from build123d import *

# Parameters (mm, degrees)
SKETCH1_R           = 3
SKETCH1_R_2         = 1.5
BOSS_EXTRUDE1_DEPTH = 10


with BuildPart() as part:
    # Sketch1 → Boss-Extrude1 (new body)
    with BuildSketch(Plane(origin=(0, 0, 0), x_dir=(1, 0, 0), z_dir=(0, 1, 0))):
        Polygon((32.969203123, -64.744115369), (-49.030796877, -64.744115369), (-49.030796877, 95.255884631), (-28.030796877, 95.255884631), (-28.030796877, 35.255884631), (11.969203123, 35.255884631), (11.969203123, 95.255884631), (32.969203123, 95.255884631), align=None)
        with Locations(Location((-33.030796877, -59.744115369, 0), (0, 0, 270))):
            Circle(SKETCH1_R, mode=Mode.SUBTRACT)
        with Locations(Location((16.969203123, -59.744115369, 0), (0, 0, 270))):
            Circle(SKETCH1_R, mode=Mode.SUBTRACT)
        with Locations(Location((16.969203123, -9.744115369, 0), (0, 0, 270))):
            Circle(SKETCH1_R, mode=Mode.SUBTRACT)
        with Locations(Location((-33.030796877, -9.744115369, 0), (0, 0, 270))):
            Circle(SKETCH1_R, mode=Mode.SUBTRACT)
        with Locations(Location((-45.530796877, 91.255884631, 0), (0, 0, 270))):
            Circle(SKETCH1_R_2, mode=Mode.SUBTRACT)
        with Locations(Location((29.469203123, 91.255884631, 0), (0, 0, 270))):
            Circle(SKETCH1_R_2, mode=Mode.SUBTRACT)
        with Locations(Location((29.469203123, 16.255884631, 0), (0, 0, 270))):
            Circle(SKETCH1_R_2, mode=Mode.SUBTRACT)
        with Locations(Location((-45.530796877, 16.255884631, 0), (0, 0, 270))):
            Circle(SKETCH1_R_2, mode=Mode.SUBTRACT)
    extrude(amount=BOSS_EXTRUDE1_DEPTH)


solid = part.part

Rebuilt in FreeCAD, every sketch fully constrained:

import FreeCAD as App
import Part
import Sketcher
from FreeCAD import Vector


def add_polygon(sketch, points):
    """Adds a closed chain of lines whose ends are joined by coincident constraints."""
    first, n = sketch.GeometryCount, len(points)
    for a, b in zip(points, points[1:] + points[:1]):
        sketch.addGeometry(Part.LineSegment(App.Vector(*a, 0), App.Vector(*b, 0)), False)
    for i in range(n):
        sketch.addConstraint(Sketcher.Constraint("Coincident", first + i, 2, first + (i + 1) % n, 1))

doc = App.newDocument("Part")
body = doc.addObject("PartDesign::Body", "Body")

# Sketch on XZ plane
sketch1 = doc.addObject("Sketcher::SketchObject", "Sketch")
body.addObject(sketch1)
sketch1.AttachmentSupport = (doc.XZ_Plane, [""])
sketch1.MapMode = "FlatFace"
add_polygon(sketch1, [(-49, 64.7), (33, 64.7), (33, -95.3), (12, -95.3), (12, -35.3), (-28, -35.3), (-28, -95.3), (-49, -95.3)])  # lines 0-7
sketch1.addGeometry(Part.Circle(Vector(17, 59.7, 0), Vector(0, 0, 1), 3), False)  # 8
sketch1.addGeometry(Part.Circle(Vector(17, 9.7, 0), Vector(0, 0, 1), 3), False)  # 9
sketch1.addGeometry(Part.Circle(Vector(-33, 59.7, 0), Vector(0, 0, 1), 3), False)  # 10
sketch1.addGeometry(Part.Circle(Vector(-33, 9.7, 0), Vector(0, 0, 1), 3), False)  # 11
sketch1.addGeometry(Part.Circle(Vector(29.5, -16.3, 0), Vector(0, 0, 1), 1.5), False)  # 12
sketch1.addGeometry(Part.Circle(Vector(29.5, -91.3, 0), Vector(0, 0, 1), 1.5), False)  # 13
sketch1.addGeometry(Part.Circle(Vector(-45.5, -16.3, 0), Vector(0, 0, 1), 1.5), False)  # 14
sketch1.addGeometry(Part.Circle(Vector(-45.5, -91.3, 0), Vector(0, 0, 1), 1.5), False)  # 15
sketch1.addConstraint([
    Sketcher.Constraint("Horizontal", 0),
    Sketcher.Constraint("Vertical", 1),
    Sketcher.Constraint("Horizontal", 2),
    Sketcher.Constraint("Vertical", 3),
    Sketcher.Constraint("Horizontal", 4),
    Sketcher.Constraint("Vertical", 5),
    Sketcher.Constraint("Horizontal", 6),
    Sketcher.Constraint("Vertical", 7),
    Sketcher.Constraint("Equal", 8, 9),
    Sketcher.Constraint("Equal", 9, 10),
    Sketcher.Constraint("Equal", 10, 11),
    Sketcher.Constraint("Equal", 12, 13),
    Sketcher.Constraint("Equal", 13, 14),
    Sketcher.Constraint("Equal", 14, 15),
    Sketcher.Constraint("Horizontal", 8, 3, 10, 3),
    Sketcher.Constraint("Horizontal", 9, 3, 11, 3),
    Sketcher.Constraint("Horizontal", 12, 3, 14, 3),
    Sketcher.Constraint("Horizontal", 13, 3, 15, 3),
    Sketcher.Constraint("Horizontal", 2, 2, 5, 2),
    Sketcher.Constraint("Vertical", 8, 3, 9, 3),
    Sketcher.Constraint("Vertical", 10, 3, 11, 3),
    Sketcher.Constraint("Vertical", 12, 3, 13, 3),
    Sketcher.Constraint("Vertical", 14, 3, 15, 3),
    Sketcher.Constraint("Equal", 2, 6),
    Sketcher.Constraint("Diameter", 8, 6.0),
    Sketcher.Constraint("Diameter", 12, 3.0),
    Sketcher.Constraint("DistanceX", 0, 1, 0, 2, 82.0),
    Sketcher.Constraint("DistanceX", 2, 2, 2, 1, 21.0),
    Sketcher.Constraint("DistanceY", 1, 2, 1, 1, 160.0),
    Sketcher.Constraint("DistanceY", 3, 1, 3, 2, 60.0),
    Sketcher.Constraint("DistanceY", 9, 3, 8, 3, 50.0),
    Sketcher.Constraint("DistanceX", 10, 3, 8, 3, 50.0),
    Sketcher.Constraint("DistanceY", 12, 3, 9, 3, 26.0),
    Sketcher.Constraint("DistanceY", 13, 3, 12, 3, 75.0),
    Sketcher.Constraint("DistanceX", 14, 3, 12, 3, 75.0),
    Sketcher.Constraint("DistanceX", 8, 3, 0, 2, 16.0),
    Sketcher.Constraint("DistanceY", 8, 3, 0, 2, 5.0),
    Sketcher.Constraint("DistanceX", 9, 3, 12, 3, 12.5),
    Sketcher.Constraint("DistanceX", -1, 1, 8, 3, 16.969203),
    Sketcher.Constraint("DistanceY", -1, 1, 8, 3, 59.744115),
])
pad1 = doc.addObject("PartDesign::Pad", "Pad")
body.addObject(pad1)
pad1.Profile = sketch1
pad1.Length = 10
pad1.Reversed = True

doc.recompute()
